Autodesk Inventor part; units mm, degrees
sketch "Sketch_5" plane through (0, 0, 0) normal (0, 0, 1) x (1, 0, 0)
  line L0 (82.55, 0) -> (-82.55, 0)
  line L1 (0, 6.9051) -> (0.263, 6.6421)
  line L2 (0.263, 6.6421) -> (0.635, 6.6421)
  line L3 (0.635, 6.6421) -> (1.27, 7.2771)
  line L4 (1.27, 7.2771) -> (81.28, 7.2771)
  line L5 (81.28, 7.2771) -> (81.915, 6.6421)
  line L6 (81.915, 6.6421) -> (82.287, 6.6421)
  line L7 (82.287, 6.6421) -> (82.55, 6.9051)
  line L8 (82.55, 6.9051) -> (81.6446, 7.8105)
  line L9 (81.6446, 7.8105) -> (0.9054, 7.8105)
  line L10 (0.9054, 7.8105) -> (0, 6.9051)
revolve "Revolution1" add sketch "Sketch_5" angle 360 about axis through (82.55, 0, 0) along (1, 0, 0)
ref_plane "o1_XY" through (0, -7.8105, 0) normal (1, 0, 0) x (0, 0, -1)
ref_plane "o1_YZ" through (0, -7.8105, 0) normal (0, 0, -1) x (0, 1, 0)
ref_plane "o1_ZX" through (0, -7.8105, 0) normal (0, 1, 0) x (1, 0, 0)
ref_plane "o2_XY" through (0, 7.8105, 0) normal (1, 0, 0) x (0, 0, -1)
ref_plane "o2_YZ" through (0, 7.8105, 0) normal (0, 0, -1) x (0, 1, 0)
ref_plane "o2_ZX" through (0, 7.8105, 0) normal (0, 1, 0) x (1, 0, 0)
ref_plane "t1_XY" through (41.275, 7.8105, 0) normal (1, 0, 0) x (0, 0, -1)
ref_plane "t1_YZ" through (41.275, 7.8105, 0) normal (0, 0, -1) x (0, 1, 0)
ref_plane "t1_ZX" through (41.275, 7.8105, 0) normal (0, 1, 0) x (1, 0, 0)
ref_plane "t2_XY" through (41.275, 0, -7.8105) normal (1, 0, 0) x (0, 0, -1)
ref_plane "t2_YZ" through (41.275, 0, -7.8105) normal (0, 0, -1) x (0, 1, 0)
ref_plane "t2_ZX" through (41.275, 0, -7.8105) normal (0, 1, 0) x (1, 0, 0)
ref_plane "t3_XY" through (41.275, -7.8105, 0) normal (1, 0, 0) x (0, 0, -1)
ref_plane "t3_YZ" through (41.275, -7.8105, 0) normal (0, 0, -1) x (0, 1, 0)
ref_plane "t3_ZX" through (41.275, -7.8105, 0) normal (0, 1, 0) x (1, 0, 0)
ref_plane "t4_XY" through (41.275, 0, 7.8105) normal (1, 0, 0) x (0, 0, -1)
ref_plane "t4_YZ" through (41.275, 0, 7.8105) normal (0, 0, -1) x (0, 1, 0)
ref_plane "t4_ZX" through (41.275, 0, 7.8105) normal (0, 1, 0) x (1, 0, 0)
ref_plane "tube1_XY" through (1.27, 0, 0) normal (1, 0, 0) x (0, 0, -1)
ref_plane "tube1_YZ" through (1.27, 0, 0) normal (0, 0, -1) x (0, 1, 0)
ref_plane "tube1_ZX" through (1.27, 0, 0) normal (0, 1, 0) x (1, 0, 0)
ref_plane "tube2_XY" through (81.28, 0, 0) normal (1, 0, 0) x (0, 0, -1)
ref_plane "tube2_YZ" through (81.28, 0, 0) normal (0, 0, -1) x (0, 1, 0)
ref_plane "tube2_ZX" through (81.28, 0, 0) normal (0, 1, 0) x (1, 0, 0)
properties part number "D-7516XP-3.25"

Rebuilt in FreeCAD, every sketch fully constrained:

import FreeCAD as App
import Part
import Sketcher

V = App.Vector
Q = App.Units.Quantity

doc = App.newDocument("Part")
params = doc.addObject("Spreadsheet::Sheet", "Params")
for row, (alias, value) in enumerate([
    ("sketch1_width", "3.15 in"),
    ("revolution_angle", "360 deg"),
], start=1):
    params.set(f"A{row}", alias)
    params.set(f"B{row}", "=" + value)
    params.setAlias(f"B{row}", alias)

body = doc.addObject("PartDesign::Body", "Body")

# Sketch on XY plane
sketch1 = body.newObject("Sketcher::SketchObject", "Sketch")
sketch1.AttachmentSupport = (doc.getObject("XY_Plane"), [""])
sketch1.MapMode = "FlatFace"
sketch1.addGeometry(Part.LineSegment(V(0.9054, 7.8105, 0), V(0, 6.9051, 0)), False)
sketch1.addGeometry(Part.LineSegment(V(0, 6.9051, 0), V(0.263, 6.6421, 0)), False)
sketch1.addGeometry(Part.LineSegment(V(0.263, 6.6421, 0), V(0.635, 6.6421, 0)), False)
sketch1.addGeometry(Part.LineSegment(V(0.635, 6.6421, 0), V(1.27, 7.2771, 0)), False)
sketch1.addGeometry(Part.LineSegment(V(1.27, 7.2771, 0), V(81.28, 7.2771, 0)), False)
sketch1.addGeometry(Part.LineSegment(V(81.28, 7.2771, 0), V(81.915, 6.6421, 0)), False)
sketch1.addGeometry(Part.LineSegment(V(81.915, 6.6421, 0), V(82.287, 6.6421, 0)), False)
sketch1.addGeometry(Part.LineSegment(V(82.287, 6.6421, 0), V(82.55, 6.9051, 0)), False)
sketch1.addGeometry(Part.LineSegment(V(82.55, 6.9051, 0), V(81.6446, 7.8105, 0)), False)
sketch1.addGeometry(Part.LineSegment(V(81.6446, 7.8105, 0), V(0.9054, 7.8105, 0)), False)
sketch1.addConstraint(Sketcher.Constraint("Coincident", 0, 2, 1, 1))
sketch1.addConstraint(Sketcher.Constraint("Coincident", 1, 2, 2, 1))
sketch1.addConstraint(Sketcher.Constraint("Coincident", 2, 2, 3, 1))
sketch1.addConstraint(Sketcher.Constraint("Coincident", 3, 2, 4, 1))
sketch1.addConstraint(Sketcher.Constraint("Coincident", 4, 2, 5, 1))
sketch1.addConstraint(Sketcher.Constraint("Coincident", 5, 2, 6, 1))
sketch1.addConstraint(Sketcher.Constraint("Coincident", 6, 2, 7, 1))
sketch1.addConstraint(Sketcher.Constraint("Coincident", 7, 2, 8, 1))
sketch1.addConstraint(Sketcher.Constraint("Coincident", 8, 2, 9, 1))
sketch1.addConstraint(Sketcher.Constraint("Coincident", 9, 2, 0, 1))
sketch1.addConstraint(Sketcher.Constraint("Horizontal", 2))
sketch1.addConstraint(Sketcher.Constraint("Horizontal", 4))
sketch1.addConstraint(Sketcher.Constraint("Horizontal", 6))
sketch1.addConstraint(Sketcher.Constraint("Horizontal", 9))
sketch1.addConstraint(Sketcher.Constraint("PointOnObject", 0, 2, -2))
sketch1.addConstraint(Sketcher.Constraint("Perpendicular", 0, 1))
sketch1.addConstraint(Sketcher.Constraint("Perpendicular", 1, 3))
sketch1.addConstraint(Sketcher.Constraint("Perpendicular", 3, 5))
sketch1.addConstraint(Sketcher.Constraint("Perpendicular", 5, 7))
sketch1.addConstraint(Sketcher.Constraint("Perpendicular", 7, 8))
sketch1.addConstraint(Sketcher.Constraint("Horizontal", 2, 2, 5, 2))
sketch1.addConstraint(Sketcher.Constraint("Horizontal", 0, 2, 7, 2))
sketch1.addConstraint(Sketcher.Constraint("Equal", 2, 6))
sketch1.addConstraint(Sketcher.Constraint("Equal", 3, 5))
sketch1.addConstraint(Sketcher.Constraint("DistanceX", 4, 1, 4, 2, Q("3.15 in")))
sketch1.addConstraint(Sketcher.Constraint("DistanceX", -1, 1, 4, 2, Q("3.2 in")))
sketch1.addConstraint(Sketcher.Constraint("DistanceX", 2, 2, 5, 2, Q("3.2 in")))
sketch1.addConstraint(Sketcher.Constraint("DistanceX", 9, 2, 9, 1, Q("3.1787 in")))
sketch1.addConstraint(Sketcher.Constraint("DistanceY", 4, 2, 8, 2, Q("0.021 in")))
sketch1.addConstraint(Sketcher.Constraint("DistanceY", -1, 1, 1, 2, Q("0.2615 in")))
sketch1.setExpression("Constraints[24]", "Params.sketch1_width")
revolution = body.newObject("PartDesign::Revolution", "Revolution")
revolution.Profile = sketch1
revolution.ReferenceAxis = (sketch1, ["H_Axis"])
revolution.setExpression("Angle", "Params.revolution_angle")

doc.recompute()
